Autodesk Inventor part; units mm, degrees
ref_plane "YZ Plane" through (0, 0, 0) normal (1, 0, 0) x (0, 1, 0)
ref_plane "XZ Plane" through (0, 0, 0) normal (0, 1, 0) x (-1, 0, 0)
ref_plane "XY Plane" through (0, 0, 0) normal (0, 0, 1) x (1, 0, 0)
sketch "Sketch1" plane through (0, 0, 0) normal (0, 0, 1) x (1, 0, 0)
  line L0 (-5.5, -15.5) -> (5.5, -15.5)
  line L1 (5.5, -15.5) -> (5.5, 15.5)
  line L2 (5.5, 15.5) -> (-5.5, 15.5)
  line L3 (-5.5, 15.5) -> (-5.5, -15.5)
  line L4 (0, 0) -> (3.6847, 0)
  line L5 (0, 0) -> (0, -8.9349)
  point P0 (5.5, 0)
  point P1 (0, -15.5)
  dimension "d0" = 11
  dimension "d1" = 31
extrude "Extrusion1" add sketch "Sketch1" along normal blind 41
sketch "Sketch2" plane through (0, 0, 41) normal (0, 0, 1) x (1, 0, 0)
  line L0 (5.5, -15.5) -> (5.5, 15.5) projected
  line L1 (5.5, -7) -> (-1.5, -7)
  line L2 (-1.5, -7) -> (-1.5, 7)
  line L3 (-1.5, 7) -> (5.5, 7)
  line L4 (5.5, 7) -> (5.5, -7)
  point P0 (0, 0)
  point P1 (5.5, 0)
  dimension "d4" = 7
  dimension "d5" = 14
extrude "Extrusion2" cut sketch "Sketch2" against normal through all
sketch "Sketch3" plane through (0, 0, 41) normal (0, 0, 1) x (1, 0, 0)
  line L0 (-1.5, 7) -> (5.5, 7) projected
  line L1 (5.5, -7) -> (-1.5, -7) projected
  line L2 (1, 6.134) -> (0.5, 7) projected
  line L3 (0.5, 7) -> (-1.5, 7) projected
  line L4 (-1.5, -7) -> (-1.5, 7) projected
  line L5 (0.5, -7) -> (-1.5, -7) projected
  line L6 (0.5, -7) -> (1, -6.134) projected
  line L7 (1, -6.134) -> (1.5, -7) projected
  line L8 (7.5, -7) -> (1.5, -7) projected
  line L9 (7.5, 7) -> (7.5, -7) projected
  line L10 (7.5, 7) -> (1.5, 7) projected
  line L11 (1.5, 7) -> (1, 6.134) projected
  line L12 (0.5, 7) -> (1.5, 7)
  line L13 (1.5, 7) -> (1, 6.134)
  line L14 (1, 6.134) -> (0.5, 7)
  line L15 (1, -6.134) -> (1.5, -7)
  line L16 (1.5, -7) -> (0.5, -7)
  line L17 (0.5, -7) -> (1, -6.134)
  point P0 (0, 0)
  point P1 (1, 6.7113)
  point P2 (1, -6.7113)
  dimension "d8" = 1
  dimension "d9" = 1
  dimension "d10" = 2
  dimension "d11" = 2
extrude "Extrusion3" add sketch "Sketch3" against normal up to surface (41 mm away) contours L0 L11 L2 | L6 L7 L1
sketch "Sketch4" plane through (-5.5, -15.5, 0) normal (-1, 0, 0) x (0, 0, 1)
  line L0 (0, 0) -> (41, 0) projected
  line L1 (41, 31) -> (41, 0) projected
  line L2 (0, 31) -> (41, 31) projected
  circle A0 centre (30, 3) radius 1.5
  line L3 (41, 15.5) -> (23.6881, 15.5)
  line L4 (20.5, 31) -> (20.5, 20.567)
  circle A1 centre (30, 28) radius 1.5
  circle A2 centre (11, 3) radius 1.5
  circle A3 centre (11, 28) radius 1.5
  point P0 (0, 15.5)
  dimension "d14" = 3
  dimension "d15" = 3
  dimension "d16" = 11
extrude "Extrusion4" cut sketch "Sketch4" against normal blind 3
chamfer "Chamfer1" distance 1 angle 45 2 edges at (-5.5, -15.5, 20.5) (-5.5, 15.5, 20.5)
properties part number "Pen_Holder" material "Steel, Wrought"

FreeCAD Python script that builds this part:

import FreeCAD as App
import Part
import Sketcher
from FreeCAD import Vector


def edges_at(feature, points):
    """Names of the edges that pass closest to the given points."""
    edges = feature.Shape.Edges
    near = lambda p: min(range(len(edges)), key=lambda i: edges[i].distToShape(Part.Vertex(*p))[0])
    return sorted({f"Edge{near(p) + 1}" for p in points})

doc = App.newDocument("Part")
params = doc.addObject("Spreadsheet::Sheet", "Params")
for row, (alias, value) in enumerate([
    ("sketch1_width", "11 mm"),
    ("sketch1_height", "31 mm"),
    ("pad1_length", "41 mm"),
    ("sketch2_width", "7 mm"),
    ("sketch2_height", "14 mm"),
    ("sketch3_width", "1 mm"),
    ("sketch3_length", "1 mm"),
    ("pad2_length", "41 mm"),
    ("sketch4_diameter", "3 mm"),
    ("pocket2_length", "3 mm"),
    ("chamfer_size", "1 mm"),
], start=1):
    params.set(f"A{row}", alias)
    params.set(f"B{row}", "=" + value)
    params.setAlias(f"B{row}", alias)

body = doc.addObject("PartDesign::Body", "Body")

# Sketch on XY plane
sketch1 = body.newObject("Sketcher::SketchObject", "Sketch")
sketch1.AttachmentSupport = (doc.getObject("XY_Plane"), [""])
sketch1.MapMode = "FlatFace"
sketch1.addGeometry(Part.LineSegment(Vector(-6, 16, 0), Vector(-6, -16, 0)), False)
sketch1.addGeometry(Part.LineSegment(Vector(-6, -16, 0), Vector(6, -16, 0)), False)
sketch1.addGeometry(Part.LineSegment(Vector(6, -16, 0), Vector(6, 16, 0)), False)
sketch1.addGeometry(Part.LineSegment(Vector(6, 16, 0), Vector(-6, 16, 0)), False)
sketch1.addConstraint(Sketcher.Constraint("Coincident", 0, 2, 1, 1))
sketch1.addConstraint(Sketcher.Constraint("Coincident", 1, 2, 2, 1))
sketch1.addConstraint(Sketcher.Constraint("Coincident", 2, 2, 3, 1))
sketch1.addConstraint(Sketcher.Constraint("Coincident", 3, 2, 0, 1))
sketch1.addConstraint(Sketcher.Constraint("Vertical", 0))
sketch1.addConstraint(Sketcher.Constraint("Horizontal", 1))
sketch1.addConstraint(Sketcher.Constraint("Vertical", 2))
sketch1.addConstraint(Sketcher.Constraint("Horizontal", 3))
sketch1.addConstraint(Sketcher.Constraint("Symmetric", 0, 2, 2, 2, -1, 1))
sketch1.addConstraint(Sketcher.Constraint("DistanceX", 1, 1, 1, 2, 11.0))
sketch1.addConstraint(Sketcher.Constraint("DistanceY", 0, 2, 0, 1, 31.0))
sketch1.setExpression("Constraints[9]", "Params.sketch1_width")
sketch1.setExpression("Constraints[10]", "Params.sketch1_height")
pad1 = body.newObject("PartDesign::Pad", "Pad")
pad1.Profile = sketch1
pad1.setExpression("Length", "Params.pad1_length")

# Sketch on XY plane
sketch2 = body.newObject("Sketcher::SketchObject", "Sketch001")
sketch2.AttachmentSupport = (doc.getObject("XY_Plane"), [""])
sketch2.MapMode = "FlatFace"
sketch2.AttachmentOffset = App.Placement(Vector(0, 0, 41), App.Rotation())
sketch2.addGeometry(Part.LineSegment(Vector(-2, -7, 0), Vector(6, -7, 0)), False)
sketch2.addGeometry(Part.LineSegment(Vector(6, -7, 0), Vector(6, 7, 0)), False)
sketch2.addGeometry(Part.LineSegment(Vector(6, 7, 0), Vector(-2, 7, 0)), False)
sketch2.addGeometry(Part.LineSegment(Vector(-2, 7, 0), Vector(-2, -7, 0)), False)
sketch2.addConstraint(Sketcher.Constraint("Coincident", 0, 2, 1, 1))
sketch2.addConstraint(Sketcher.Constraint("Coincident", 1, 2, 2, 1))
sketch2.addConstraint(Sketcher.Constraint("Coincident", 2, 2, 3, 1))
sketch2.addConstraint(Sketcher.Constraint("Coincident", 3, 2, 0, 1))
sketch2.addConstraint(Sketcher.Constraint("Horizontal", 0))
sketch2.addConstraint(Sketcher.Constraint("Vertical", 1))
sketch2.addConstraint(Sketcher.Constraint("Horizontal", 2))
sketch2.addConstraint(Sketcher.Constraint("Vertical", 3))
sketch2.addConstraint(Sketcher.Constraint("DistanceX", 0, 1, 0, 2, 7.0))
sketch2.addConstraint(Sketcher.Constraint("DistanceY", 1, 1, 1, 2, 14.0))
sketch2.addConstraint(Sketcher.Constraint("DistanceY", 0, 2, -1, 1, 7.0))
sketch2.addConstraint(Sketcher.Constraint("DistanceX", -1, 1, 0, 2, 5.5))
sketch2.setExpression("Constraints[8]", "Params.sketch2_width")
sketch2.setExpression("Constraints[9]", "Params.sketch2_height")
pocket1 = body.newObject("PartDesign::Pocket", "Pocket")
pocket1.Profile = sketch2
pocket1.Type = "ThroughAll"

# Sketch on XY plane
sketch3 = body.newObject("Sketcher::SketchObject", "Sketch002")
sketch3.AttachmentSupport = (doc.getObject("XY_Plane"), [""])
sketch3.MapMode = "FlatFace"
sketch3.AttachmentOffset = App.Placement(Vector(0, 0, 41), App.Rotation())
sketch3.addGeometry(Part.LineSegment(Vector(1.5, 7, 0), Vector(0.5, 7, 0)), False)
sketch3.addGeometry(Part.LineSegment(Vector(0.5, 7, 0), Vector(1, 6.1, 0)), False)
sketch3.addGeometry(Part.LineSegment(Vector(1, 6.1, 0), Vector(1.5, 7, 0)), False)
sketch3.addGeometry(Part.LineSegment(Vector(1, -6.1, 0), Vector(0.5, -7, 0)), False)
sketch3.addGeometry(Part.LineSegment(Vector(0.5, -7, 0), Vector(1.5, -7, 0)), False)
sketch3.addGeometry(Part.LineSegment(Vector(1.5, -7, 0), Vector(1, -6.1, 0)), False)
sketch3.addConstraint(Sketcher.Constraint("Coincident", 0, 2, 1, 1))
sketch3.addConstraint(Sketcher.Constraint("Coincident", 1, 2, 2, 1))
sketch3.addConstraint(Sketcher.Constraint("Coincident", 2, 2, 0, 1))
sketch3.addConstraint(Sketcher.Constraint("Coincident", 3, 2, 4, 1))
sketch3.addConstraint(Sketcher.Constraint("Coincident", 4, 2, 5, 1))
sketch3.addConstraint(Sketcher.Constraint("Coincident", 5, 2, 3, 1))
sketch3.addConstraint(Sketcher.Constraint("Horizontal", 0))
sketch3.addConstraint(Sketcher.Constraint("Horizontal", 4))
sketch3.addConstraint(Sketcher.Constraint("Symmetric", 0, 2, 3, 2, -1))
sketch3.addConstraint(Sketcher.Constraint("Symmetric", 1, 2, 5, 2, -1))
sketch3.addConstraint(Sketcher.Constraint("Parallel", 2, 3))
sketch3.addConstraint(Sketcher.Constraint("Parallel", 1, 5))
sketch3.addConstraint(Sketcher.Constraint("DistanceX", 0, 2, 0, 1, 1.0))
sketch3.addConstraint(Sketcher.Constraint("Distance", 1, 1.0))
sketch3.addConstraint(Sketcher.Constraint("DistanceX", -1, 1, 1, 2, 1.0))
sketch3.addConstraint(Sketcher.Constraint("DistanceY", -1, 1, 0, 2, 7.0))
sketch3.setExpression("Constraints[12]", "Params.sketch3_width")
sketch3.setExpression("Constraints[13]", "Params.sketch3_length")
pad2 = body.newObject("PartDesign::Pad", "Pad001")
pad2.Profile = sketch3
pad2.setExpression("Length", "Params.pad2_length")
pad2.Reversed = True

# Sketch on YZ plane
sketch4 = body.newObject("Sketcher::SketchObject", "Sketch003")
sketch4.AttachmentSupport = (doc.getObject("YZ_Plane"), [""])
sketch4.MapMode = "FlatFace"
sketch4.AttachmentOffset = App.Placement(Vector(0, 0, -5.5), App.Rotation())
sketch4.addGeometry(Part.Circle(Vector(-12.5, 30, 0), Vector(0, 0, 1), 1.5), False)
sketch4.addGeometry(Part.Circle(Vector(12.5, 30, 0), Vector(0, 0, 1), 1.5), False)
sketch4.addGeometry(Part.Circle(Vector(-12.5, 11, 0), Vector(0, 0, 1), 1.5), False)
sketch4.addGeometry(Part.Circle(Vector(12.5, 11, 0), Vector(0, 0, 1), 1.5), False)
sketch4.addConstraint(Sketcher.Constraint("Equal", 0, 1))
sketch4.addConstraint(Sketcher.Constraint("Equal", 1, 2))
sketch4.addConstraint(Sketcher.Constraint("Equal", 2, 3))
sketch4.addConstraint(Sketcher.Constraint("Symmetric", 0, 3, 1, 3, -2))
sketch4.addConstraint(Sketcher.Constraint("Symmetric", 2, 3, 3, 3, -2))
sketch4.addConstraint(Sketcher.Constraint("Vertical", 0, 3, 2, 3))
sketch4.addConstraint(Sketcher.Constraint("Diameter", 0, 3.0))
sketch4.addConstraint(Sketcher.Constraint("DistanceY", -1, 1, 2, 3, 11.0))
sketch4.addConstraint(Sketcher.Constraint("DistanceY", -1, 1, 0, 3, 30.0))
sketch4.addConstraint(Sketcher.Constraint("DistanceX", 0, 3, 1, 3, 25.0))
sketch4.setExpression("Constraints[6]", "Params.sketch4_diameter")
pocket2 = body.newObject("PartDesign::Pocket", "Pocket001")
pocket2.Profile = sketch4
pocket2.setExpression("Length", "Params.pocket2_length")
pocket2.Reversed = True
doc.recompute()

chamfer = body.newObject("PartDesign::Chamfer", "Chamfer")
chamfer.Base = (pocket2, edges_at(pocket2, [(-5.5, -15.5, 20.5), (-5.5, 15.5, 20.5)]))
chamfer.setExpression("Size", "Params.chamfer_size")

doc.recompute()
